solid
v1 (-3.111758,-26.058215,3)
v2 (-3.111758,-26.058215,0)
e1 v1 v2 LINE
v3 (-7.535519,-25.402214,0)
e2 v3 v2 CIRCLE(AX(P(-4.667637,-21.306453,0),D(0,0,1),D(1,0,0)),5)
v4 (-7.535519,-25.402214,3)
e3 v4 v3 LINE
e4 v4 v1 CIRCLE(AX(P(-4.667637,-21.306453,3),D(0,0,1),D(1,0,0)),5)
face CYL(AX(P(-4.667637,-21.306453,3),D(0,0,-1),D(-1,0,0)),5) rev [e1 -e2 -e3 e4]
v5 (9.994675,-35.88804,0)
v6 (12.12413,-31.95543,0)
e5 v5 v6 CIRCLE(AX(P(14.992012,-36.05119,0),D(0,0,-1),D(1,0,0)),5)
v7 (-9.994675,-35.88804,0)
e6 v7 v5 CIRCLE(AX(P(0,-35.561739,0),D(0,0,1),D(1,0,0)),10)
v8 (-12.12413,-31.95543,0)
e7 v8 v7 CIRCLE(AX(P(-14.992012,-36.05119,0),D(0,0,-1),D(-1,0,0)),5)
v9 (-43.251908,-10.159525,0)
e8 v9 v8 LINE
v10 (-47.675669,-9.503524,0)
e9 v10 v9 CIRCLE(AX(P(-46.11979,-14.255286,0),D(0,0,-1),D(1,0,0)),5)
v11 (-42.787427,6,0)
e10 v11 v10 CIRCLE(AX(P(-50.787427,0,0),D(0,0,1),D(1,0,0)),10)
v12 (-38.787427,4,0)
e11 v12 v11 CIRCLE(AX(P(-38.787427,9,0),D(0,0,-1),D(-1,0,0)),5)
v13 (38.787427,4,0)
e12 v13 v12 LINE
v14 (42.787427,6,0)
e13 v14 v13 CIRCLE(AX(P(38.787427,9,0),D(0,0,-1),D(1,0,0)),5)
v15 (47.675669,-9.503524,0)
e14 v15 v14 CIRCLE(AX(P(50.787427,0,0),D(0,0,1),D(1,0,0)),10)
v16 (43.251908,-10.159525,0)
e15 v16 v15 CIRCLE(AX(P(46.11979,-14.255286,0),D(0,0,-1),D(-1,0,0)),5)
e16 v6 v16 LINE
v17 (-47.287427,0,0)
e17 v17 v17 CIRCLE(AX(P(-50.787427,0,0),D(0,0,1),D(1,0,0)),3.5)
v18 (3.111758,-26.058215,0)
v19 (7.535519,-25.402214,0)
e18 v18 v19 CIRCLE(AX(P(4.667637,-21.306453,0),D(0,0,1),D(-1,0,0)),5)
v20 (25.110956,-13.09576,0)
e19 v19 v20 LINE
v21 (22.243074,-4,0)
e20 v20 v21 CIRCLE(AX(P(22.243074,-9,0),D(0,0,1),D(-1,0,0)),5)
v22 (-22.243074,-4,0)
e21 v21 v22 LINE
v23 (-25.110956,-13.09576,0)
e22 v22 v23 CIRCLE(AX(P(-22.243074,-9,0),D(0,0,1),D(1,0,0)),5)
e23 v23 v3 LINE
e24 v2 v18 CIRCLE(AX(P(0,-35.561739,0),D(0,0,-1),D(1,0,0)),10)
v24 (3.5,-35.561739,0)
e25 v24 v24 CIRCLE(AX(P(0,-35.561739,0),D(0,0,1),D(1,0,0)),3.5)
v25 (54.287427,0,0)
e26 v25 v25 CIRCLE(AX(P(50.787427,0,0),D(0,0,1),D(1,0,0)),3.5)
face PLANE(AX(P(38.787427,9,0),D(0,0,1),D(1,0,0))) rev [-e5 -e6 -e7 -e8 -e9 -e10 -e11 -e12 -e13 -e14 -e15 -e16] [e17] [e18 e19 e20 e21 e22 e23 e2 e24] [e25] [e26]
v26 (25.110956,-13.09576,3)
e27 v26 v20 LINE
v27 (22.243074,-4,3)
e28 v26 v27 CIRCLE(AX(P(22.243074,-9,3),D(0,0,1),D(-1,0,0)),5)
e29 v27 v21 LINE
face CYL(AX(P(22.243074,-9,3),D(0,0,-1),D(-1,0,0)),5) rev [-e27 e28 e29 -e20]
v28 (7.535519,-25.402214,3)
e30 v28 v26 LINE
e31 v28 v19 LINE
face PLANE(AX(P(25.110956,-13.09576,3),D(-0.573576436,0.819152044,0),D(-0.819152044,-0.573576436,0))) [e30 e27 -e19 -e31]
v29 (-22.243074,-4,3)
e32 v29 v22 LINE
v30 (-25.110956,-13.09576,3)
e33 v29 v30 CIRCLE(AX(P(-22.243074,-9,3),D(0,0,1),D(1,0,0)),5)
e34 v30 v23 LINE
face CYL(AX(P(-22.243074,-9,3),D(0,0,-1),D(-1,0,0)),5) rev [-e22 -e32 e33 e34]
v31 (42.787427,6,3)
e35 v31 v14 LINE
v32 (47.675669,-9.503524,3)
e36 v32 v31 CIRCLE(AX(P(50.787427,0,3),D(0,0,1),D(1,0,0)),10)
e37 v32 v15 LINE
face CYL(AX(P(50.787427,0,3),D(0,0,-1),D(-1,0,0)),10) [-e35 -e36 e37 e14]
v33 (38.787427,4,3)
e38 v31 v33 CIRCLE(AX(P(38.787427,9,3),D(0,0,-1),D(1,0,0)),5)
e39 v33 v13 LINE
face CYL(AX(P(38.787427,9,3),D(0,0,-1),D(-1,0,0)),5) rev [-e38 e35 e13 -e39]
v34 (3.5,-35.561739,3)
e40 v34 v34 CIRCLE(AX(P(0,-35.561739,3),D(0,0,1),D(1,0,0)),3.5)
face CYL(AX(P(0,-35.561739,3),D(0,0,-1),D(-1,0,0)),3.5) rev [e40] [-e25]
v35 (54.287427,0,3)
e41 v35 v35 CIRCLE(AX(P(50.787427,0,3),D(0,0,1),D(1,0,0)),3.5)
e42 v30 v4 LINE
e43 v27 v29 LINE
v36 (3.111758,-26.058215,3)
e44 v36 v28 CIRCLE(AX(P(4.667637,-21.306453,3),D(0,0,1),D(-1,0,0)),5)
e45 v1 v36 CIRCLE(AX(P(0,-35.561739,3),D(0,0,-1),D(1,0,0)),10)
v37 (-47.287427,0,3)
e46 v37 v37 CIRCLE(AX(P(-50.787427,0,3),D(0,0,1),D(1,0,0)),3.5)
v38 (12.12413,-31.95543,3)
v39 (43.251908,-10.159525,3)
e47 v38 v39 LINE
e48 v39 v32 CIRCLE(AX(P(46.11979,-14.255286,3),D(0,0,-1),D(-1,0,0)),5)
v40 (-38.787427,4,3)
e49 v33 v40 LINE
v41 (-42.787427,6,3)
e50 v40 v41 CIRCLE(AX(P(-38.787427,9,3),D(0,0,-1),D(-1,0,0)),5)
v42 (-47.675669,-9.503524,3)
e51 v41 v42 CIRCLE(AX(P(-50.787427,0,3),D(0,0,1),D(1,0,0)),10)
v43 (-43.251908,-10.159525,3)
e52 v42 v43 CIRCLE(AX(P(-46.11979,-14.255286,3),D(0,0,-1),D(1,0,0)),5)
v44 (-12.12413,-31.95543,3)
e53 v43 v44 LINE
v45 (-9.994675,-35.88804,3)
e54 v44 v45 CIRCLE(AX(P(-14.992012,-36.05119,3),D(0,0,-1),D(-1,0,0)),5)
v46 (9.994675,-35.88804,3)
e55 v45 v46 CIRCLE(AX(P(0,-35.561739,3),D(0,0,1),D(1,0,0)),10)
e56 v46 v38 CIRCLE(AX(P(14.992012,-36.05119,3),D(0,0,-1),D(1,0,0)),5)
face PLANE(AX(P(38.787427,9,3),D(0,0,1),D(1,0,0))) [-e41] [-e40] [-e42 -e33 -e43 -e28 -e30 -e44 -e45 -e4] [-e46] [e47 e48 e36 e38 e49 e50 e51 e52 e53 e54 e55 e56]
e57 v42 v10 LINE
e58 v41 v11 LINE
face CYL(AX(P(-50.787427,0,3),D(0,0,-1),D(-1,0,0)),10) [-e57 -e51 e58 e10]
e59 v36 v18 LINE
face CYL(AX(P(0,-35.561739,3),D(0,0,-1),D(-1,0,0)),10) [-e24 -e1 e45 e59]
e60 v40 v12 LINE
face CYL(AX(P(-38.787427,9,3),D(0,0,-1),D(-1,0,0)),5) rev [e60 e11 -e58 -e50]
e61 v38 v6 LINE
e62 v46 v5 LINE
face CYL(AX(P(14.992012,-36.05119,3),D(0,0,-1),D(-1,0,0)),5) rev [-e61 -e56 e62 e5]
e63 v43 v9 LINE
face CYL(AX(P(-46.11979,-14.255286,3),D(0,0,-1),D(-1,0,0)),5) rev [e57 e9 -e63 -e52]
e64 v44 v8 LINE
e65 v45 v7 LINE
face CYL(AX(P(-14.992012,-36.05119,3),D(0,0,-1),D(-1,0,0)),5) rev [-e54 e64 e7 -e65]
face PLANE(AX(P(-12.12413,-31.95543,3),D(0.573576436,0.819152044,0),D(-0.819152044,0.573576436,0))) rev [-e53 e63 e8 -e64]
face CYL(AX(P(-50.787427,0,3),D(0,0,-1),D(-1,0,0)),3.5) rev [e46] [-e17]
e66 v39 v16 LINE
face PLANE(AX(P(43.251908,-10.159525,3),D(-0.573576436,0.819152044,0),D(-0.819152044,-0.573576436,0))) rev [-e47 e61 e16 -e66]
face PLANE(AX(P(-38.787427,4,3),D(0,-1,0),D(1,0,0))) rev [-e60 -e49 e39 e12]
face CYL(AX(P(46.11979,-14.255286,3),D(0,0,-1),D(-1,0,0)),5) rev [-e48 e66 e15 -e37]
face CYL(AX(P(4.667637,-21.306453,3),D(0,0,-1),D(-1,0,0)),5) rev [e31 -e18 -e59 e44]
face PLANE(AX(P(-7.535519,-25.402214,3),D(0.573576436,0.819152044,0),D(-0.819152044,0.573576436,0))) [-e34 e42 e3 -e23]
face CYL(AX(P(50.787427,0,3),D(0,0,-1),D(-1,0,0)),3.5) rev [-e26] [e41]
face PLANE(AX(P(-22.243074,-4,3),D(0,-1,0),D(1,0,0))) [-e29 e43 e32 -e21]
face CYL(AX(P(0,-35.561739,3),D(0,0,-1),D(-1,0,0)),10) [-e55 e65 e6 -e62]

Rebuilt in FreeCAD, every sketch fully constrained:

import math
import FreeCAD as App
import Part
import Sketcher
Q = App.Units.Quantity

doc = App.newDocument("Part")
body = doc.addObject("PartDesign::Body", "Body")

# Sketch on XY plane
sketch1 = body.newObject("Sketcher::SketchObject", "Sketch")
sketch1.AttachmentSupport = (doc.getObject("XY_Plane"), [""])
sketch1.MapMode = "FlatFace"
sketch1.addGeometry(Part.LineSegment(App.Vector(12.1, -32, 0), App.Vector(43.3, -10.2, 0)), False)
sketch1.addGeometry(Part.ArcOfCircle(Part.Circle(App.Vector(46.1, -14.3, 0), App.Vector(0, 0, 1), 5), math.radians(72), math.radians(125)), False)
sketch1.addGeometry(Part.ArcOfCircle(Part.Circle(App.Vector(50.8, 0, 0), App.Vector(0, 0, 1), 10), math.radians(-108), math.radians(143)), False)
sketch1.addGeometry(Part.ArcOfCircle(Part.Circle(App.Vector(38.8, 9, 0), App.Vector(0, 0, 1), 5), math.radians(-90), math.radians(-37)), False)
sketch1.addGeometry(Part.LineSegment(App.Vector(38.8, 4, 0), App.Vector(-38.8, 4, 0)), False)
sketch1.addGeometry(Part.ArcOfCircle(Part.Circle(App.Vector(-38.8, 9, 0), App.Vector(0, 0, 1), 5), math.radians(-143), math.radians(-90)), False)
sketch1.addGeometry(Part.ArcOfCircle(Part.Circle(App.Vector(-50.8, 0, 0), App.Vector(0, 0, 1), 10), math.radians(37), math.radians(288)), False)
sketch1.addGeometry(Part.ArcOfCircle(Part.Circle(App.Vector(-46.1, -14.3, 0), App.Vector(0, 0, 1), 5), math.radians(55), math.radians(108)), False)
sketch1.addGeometry(Part.LineSegment(App.Vector(-43.3, -10.2, 0), App.Vector(-12.1, -32, 0)), False)
sketch1.addGeometry(Part.ArcOfCircle(Part.Circle(App.Vector(-15, -36.1, 0), App.Vector(0, 0, 1), 5), math.radians(2), math.radians(55)), False)
sketch1.addGeometry(Part.ArcOfCircle(Part.Circle(App.Vector(0, -35.6, 0), App.Vector(0, 0, 1), 10), math.radians(-178), math.radians(-2)), False)
sketch1.addGeometry(Part.ArcOfCircle(Part.Circle(App.Vector(15, -36.1, 0), App.Vector(0, 0, 1), 5), math.radians(125), math.radians(178)), False)
sketch1.addGeometry(Part.Circle(App.Vector(0, -35.6, 0), App.Vector(0, 0, 1), 3.5), False)
sketch1.addGeometry(Part.Circle(App.Vector(50.8, 0, 0), App.Vector(0, 0, 1), 3.5), False)
sketch1.addGeometry(Part.LineSegment(App.Vector(-22.2, -4, 0), App.Vector(22.2, -4, 0)), False)
sketch1.addGeometry(Part.ArcOfCircle(Part.Circle(App.Vector(22.2, -9, 0), App.Vector(0, 0, 1), 5), math.radians(-55), math.radians(90)), False)
sketch1.addGeometry(Part.LineSegment(App.Vector(25.1, -13.1, 0), App.Vector(7.5, -25.4, 0)), False)
sketch1.addGeometry(Part.ArcOfCircle(Part.Circle(App.Vector(4.7, -21.3, 0), App.Vector(0, 0, 1), 5), math.radians(-108), math.radians(-55)), False)
sketch1.addGeometry(Part.ArcOfCircle(Part.Circle(App.Vector(0, -35.6, 0), App.Vector(0, 0, 1), 10), math.radians(72), math.radians(108)), False)
sketch1.addGeometry(Part.ArcOfCircle(Part.Circle(App.Vector(-4.7, -21.3, 0), App.Vector(0, 0, 1), 5), math.radians(-125), math.radians(-72)), False)
sketch1.addGeometry(Part.LineSegment(App.Vector(-7.5, -25.4, 0), App.Vector(-25.1, -13.1, 0)), False)
sketch1.addGeometry(Part.ArcOfCircle(Part.Circle(App.Vector(-22.2, -9, 0), App.Vector(0, 0, 1), 5), math.radians(90), math.radians(235)), False)
sketch1.addGeometry(Part.Circle(App.Vector(-50.8, 0, 0), App.Vector(0, 0, 1), 3.5), False)
sketch1.addConstraint(Sketcher.Constraint("Tangent", 0, 2, 1, 2))
sketch1.addConstraint(Sketcher.Constraint("Tangent", 1, 1, 2, 1))
sketch1.addConstraint(Sketcher.Constraint("Tangent", 2, 2, 3, 2))
sketch1.addConstraint(Sketcher.Constraint("Tangent", 3, 1, 4, 1))
sketch1.addConstraint(Sketcher.Constraint("Tangent", 4, 2, 5, 2))
sketch1.addConstraint(Sketcher.Constraint("Tangent", 5, 1, 6, 1))
sketch1.addConstraint(Sketcher.Constraint("Tangent", 6, 2, 7, 2))
sketch1.addConstraint(Sketcher.Constraint("Tangent", 7, 1, 8, 1))
sketch1.addConstraint(Sketcher.Constraint("Tangent", 8, 2, 9, 2))
sketch1.addConstraint(Sketcher.Constraint("Tangent", 9, 1, 10, 1))
sketch1.addConstraint(Sketcher.Constraint("Tangent", 10, 2, 11, 2))
sketch1.addConstraint(Sketcher.Constraint("Tangent", 11, 1, 0, 1))
sketch1.addConstraint(Sketcher.Constraint("Tangent", 14, 2, 15, 2))
sketch1.addConstraint(Sketcher.Constraint("Tangent", 15, 1, 16, 1))
sketch1.addConstraint(Sketcher.Constraint("Tangent", 16, 2, 17, 2))
sketch1.addConstraint(Sketcher.Constraint("Tangent", 17, 1, 18, 1))
sketch1.addConstraint(Sketcher.Constraint("Tangent", 18, 2, 19, 2))
sketch1.addConstraint(Sketcher.Constraint("Tangent", 19, 1, 20, 1))
sketch1.addConstraint(Sketcher.Constraint("Tangent", 20, 2, 21, 2))
sketch1.addConstraint(Sketcher.Constraint("Tangent", 21, 1, 14, 1))
sketch1.addConstraint(Sketcher.Constraint("Horizontal", 4))
sketch1.addConstraint(Sketcher.Constraint("Horizontal", 14))
sketch1.addConstraint(Sketcher.Constraint("Coincident", 12, 3, 10, 3))
sketch1.addConstraint(Sketcher.Constraint("Coincident", 13, 3, 2, 3))
sketch1.addConstraint(Sketcher.Constraint("Coincident", 18, 3, 10, 3))
sketch1.addConstraint(Sketcher.Constraint("Coincident", 22, 3, 6, 3))
sketch1.addConstraint(Sketcher.Constraint("Equal", 1, 3))
sketch1.addConstraint(Sketcher.Constraint("Equal", 3, 5))
sketch1.addConstraint(Sketcher.Constraint("Equal", 2, 6))
sketch1.addConstraint(Sketcher.Constraint("Equal", 5, 7))
sketch1.addConstraint(Sketcher.Constraint("Equal", 7, 9))
sketch1.addConstraint(Sketcher.Constraint("Equal", 6, 10))
sketch1.addConstraint(Sketcher.Constraint("Equal", 9, 11))
sketch1.addConstraint(Sketcher.Constraint("Equal", 12, 13))
sketch1.addConstraint(Sketcher.Constraint("Equal", 11, 15))
sketch1.addConstraint(Sketcher.Constraint("Equal", 15, 17))
sketch1.addConstraint(Sketcher.Constraint("Equal", 10, 18))
sketch1.addConstraint(Sketcher.Constraint("Equal", 17, 19))
sketch1.addConstraint(Sketcher.Constraint("Equal", 19, 21))
sketch1.addConstraint(Sketcher.Constraint("Equal", 13, 22))
sketch1.addConstraint(Sketcher.Constraint("Symmetric", 2, 3, 6, 3, -1, 1))
sketch1.addConstraint(Sketcher.Constraint("Symmetric", 1, 3, 7, 3, -2))
sketch1.addConstraint(Sketcher.Constraint("Symmetric", 9, 3, 11, 3, -2))
sketch1.addConstraint(Sketcher.Constraint("Symmetric", 16, 2, 19, 1, -2))
sketch1.addConstraint(Sketcher.Constraint("Parallel", 0, 16))
sketch1.addConstraint(Sketcher.Constraint("Diameter", 12, 7.0))
sketch1.addConstraint(Sketcher.Constraint("Radius", 1, 5.0))
sketch1.addConstraint(Sketcher.Constraint("Radius", 2, 10.0))
sketch1.addConstraint(Sketcher.Constraint("Angle", 0, Q("35 deg")))
sketch1.addConstraint(Sketcher.Constraint("Distance", 0, 38.0))
sketch1.addConstraint(Sketcher.Constraint("DistanceY", -1, 1, 3, 3, 9.0))
sketch1.addConstraint(Sketcher.Constraint("DistanceY", 15, 3, -1, 1, 9.0))
sketch1.addConstraint(Sketcher.Constraint("DistanceY", 0, 2, 1, 1, 0.656002))
sketch1.addConstraint(Sketcher.Constraint("DistanceY", 17, 1, 16, 2, 0.656002))
sketch1.addConstraint(Sketcher.Constraint("DistanceY", 9, 1, 18, 3, 0.326301))
pad1 = body.newObject("PartDesign::Pad", "Pad")
pad1.Profile = sketch1
pad1.Length = 3

doc.recompute()
